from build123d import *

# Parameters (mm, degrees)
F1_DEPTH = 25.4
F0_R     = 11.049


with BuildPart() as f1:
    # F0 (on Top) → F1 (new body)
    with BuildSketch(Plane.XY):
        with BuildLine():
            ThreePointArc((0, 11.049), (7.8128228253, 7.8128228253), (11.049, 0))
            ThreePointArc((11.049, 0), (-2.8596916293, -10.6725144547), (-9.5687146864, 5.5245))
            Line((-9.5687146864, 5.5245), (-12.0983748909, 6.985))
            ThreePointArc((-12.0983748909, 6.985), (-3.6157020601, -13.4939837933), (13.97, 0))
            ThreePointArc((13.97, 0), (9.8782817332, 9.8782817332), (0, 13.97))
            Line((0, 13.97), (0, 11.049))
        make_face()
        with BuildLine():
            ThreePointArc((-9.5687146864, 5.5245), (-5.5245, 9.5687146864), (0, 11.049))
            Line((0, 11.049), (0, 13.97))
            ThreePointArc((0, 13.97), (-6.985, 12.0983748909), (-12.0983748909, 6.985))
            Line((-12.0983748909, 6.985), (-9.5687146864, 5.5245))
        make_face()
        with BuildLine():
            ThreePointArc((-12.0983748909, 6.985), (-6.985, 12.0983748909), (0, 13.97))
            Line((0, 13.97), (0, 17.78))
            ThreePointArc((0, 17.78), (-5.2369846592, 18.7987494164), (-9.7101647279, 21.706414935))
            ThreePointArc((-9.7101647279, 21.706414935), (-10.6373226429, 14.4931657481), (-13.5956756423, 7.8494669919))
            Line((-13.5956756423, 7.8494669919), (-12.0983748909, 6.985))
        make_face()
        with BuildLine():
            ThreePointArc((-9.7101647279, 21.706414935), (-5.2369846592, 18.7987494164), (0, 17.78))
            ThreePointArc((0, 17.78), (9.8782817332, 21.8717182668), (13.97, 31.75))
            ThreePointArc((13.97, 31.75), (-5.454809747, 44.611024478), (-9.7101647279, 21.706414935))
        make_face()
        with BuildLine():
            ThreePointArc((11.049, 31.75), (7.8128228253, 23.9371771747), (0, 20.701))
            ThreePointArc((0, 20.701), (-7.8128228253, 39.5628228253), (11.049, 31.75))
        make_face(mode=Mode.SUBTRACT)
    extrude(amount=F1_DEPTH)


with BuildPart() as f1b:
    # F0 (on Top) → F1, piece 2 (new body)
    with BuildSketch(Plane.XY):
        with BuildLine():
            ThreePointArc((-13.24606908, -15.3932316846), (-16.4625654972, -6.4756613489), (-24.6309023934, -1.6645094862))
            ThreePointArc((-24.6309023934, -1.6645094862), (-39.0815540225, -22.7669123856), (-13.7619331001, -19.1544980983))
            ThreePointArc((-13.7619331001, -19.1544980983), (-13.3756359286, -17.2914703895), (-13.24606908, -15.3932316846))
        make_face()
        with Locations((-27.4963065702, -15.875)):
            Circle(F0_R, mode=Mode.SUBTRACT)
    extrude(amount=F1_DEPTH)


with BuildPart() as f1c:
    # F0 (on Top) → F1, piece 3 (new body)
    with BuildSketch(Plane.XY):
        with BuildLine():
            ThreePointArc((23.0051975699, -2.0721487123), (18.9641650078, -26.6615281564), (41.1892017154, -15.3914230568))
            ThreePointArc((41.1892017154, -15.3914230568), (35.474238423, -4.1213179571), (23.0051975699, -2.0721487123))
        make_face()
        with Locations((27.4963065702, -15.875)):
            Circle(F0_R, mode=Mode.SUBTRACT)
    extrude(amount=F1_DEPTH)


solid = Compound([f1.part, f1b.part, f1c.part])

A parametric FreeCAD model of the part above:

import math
import FreeCAD as App
import Part
import Sketcher

V = App.Vector
Q = App.Units.Quantity

doc = App.newDocument("Part")
body = doc.addObject("PartDesign::Body", "Body")

# Sketch on XY plane
sketch1 = body.newObject("Sketcher::SketchObject", "Sketch")
sketch1.AttachmentSupport = (doc.getObject("XY_Plane"), [""])
sketch1.MapMode = "FlatFace"
sketch1.addGeometry(Part.ArcOfCircle(Part.Circle(V(0, 0, 0), V(0, 0, 1), 14), math.radians(150), math.radians(360)), False)
sketch1.addGeometry(Part.ArcOfCircle(Part.Circle(V(0, 0, 0), V(0, 0, 1), 14), math.radians(0), math.radians(90)), False)
sketch1.addGeometry(Part.LineSegment(V(0, 14, 0), V(0, 17.8, 0)), False)
sketch1.addGeometry(Part.ArcOfCircle(Part.Circle(V(0, 31.8, 0), V(0, 0, 1), 14), math.radians(-90), math.radians(0)), False)
sketch1.addGeometry(Part.ArcOfCircle(Part.Circle(V(0, 31.8, 0), V(0, 0, 1), 14), math.radians(0), math.radians(226)), False)
sketch1.addGeometry(Part.ArcOfCircle(Part.Circle(V(-34.8, 21.3, 0), V(0, 0, 1), 25.1), math.radians(-32), math.radians(1)), False)
sketch1.addGeometry(Part.LineSegment(V(-13.6, 7.8, 0), V(-12.1, 7, 0)), False)
sketch1.addGeometry(Part.ArcOfCircle(Part.Circle(V(0, 0, 0), V(0, 0, 1), 11), math.radians(0), math.radians(90)), False)
sketch1.addGeometry(Part.ArcOfCircle(Part.Circle(V(0, 0, 0), V(0, 0, 1), 11), math.radians(90), math.radians(360)), False)
sketch1.addGeometry(Part.ArcOfCircle(Part.Circle(V(0, 31.8, 0), V(0, 0, 1), 11), math.radians(0), math.radians(270)), False)
sketch1.addGeometry(Part.ArcOfCircle(Part.Circle(V(0, 31.8, 0), V(0, 0, 1), 11), math.radians(-90), math.radians(0)), False)
sketch1.addConstraint(Sketcher.Constraint("Tangent", 0, 2, 1, 1))
sketch1.addConstraint(Sketcher.Constraint("Coincident", 1, 2, 2, 1))
sketch1.addConstraint(Sketcher.Constraint("Coincident", 2, 2, 3, 1))
sketch1.addConstraint(Sketcher.Constraint("Tangent", 3, 2, 4, 1))
sketch1.addConstraint(Sketcher.Constraint("Coincident", 4, 2, 5, 2))
sketch1.addConstraint(Sketcher.Constraint("Coincident", 5, 1, 6, 1))
sketch1.addConstraint(Sketcher.Constraint("Coincident", 6, 2, 0, 1))
sketch1.addConstraint(Sketcher.Constraint("Tangent", 7, 1, 8, 2))
sketch1.addConstraint(Sketcher.Constraint("Coincident", 8, 1, 7, 2))
sketch1.addConstraint(Sketcher.Constraint("Tangent", 9, 1, 10, 2))
sketch1.addConstraint(Sketcher.Constraint("Coincident", 10, 1, 9, 2))
sketch1.addConstraint(Sketcher.Constraint("Vertical", 2))
sketch1.addConstraint(Sketcher.Constraint("Coincident", 0, 3, -1, 1))
sketch1.addConstraint(Sketcher.Constraint("Coincident", 7, 3, -1, 1))
sketch1.addConstraint(Sketcher.Constraint("Coincident", 9, 3, 3, 3))
sketch1.addConstraint(Sketcher.Constraint("Equal", 0, 1))
sketch1.addConstraint(Sketcher.Constraint("Equal", 1, 3))
sketch1.addConstraint(Sketcher.Constraint("Equal", 3, 4))
sketch1.addConstraint(Sketcher.Constraint("Equal", 8, 9))
sketch1.addConstraint(Sketcher.Constraint("PointOnObject", 3, 3, -2))
sketch1.addConstraint(Sketcher.Constraint("PointOnObject", 0, 2, -1))
sketch1.addConstraint(Sketcher.Constraint("PointOnObject", 1, 2, -2))
sketch1.addConstraint(Sketcher.Constraint("PointOnObject", 7, 1, -1))
sketch1.addConstraint(Sketcher.Constraint("PointOnObject", 8, 1, -2))
sketch1.addConstraint(Sketcher.Constraint("PointOnObject", 10, 1, -2))
sketch1.addConstraint(Sketcher.Constraint("Horizontal", 10, 3, 3, 2))
sketch1.addConstraint(Sketcher.Constraint("Horizontal", 3, 2, 9, 1))
sketch1.addConstraint(Sketcher.Constraint("Radius", 0, Q("0.55 in")))
sketch1.addConstraint(Sketcher.Constraint("Angle", 6, Q("-30 deg")))
sketch1.addConstraint(Sketcher.Constraint("Radius", 7, Q("0.435 in")))
sketch1.addConstraint(Sketcher.Constraint("DistanceY", 2, 1, 2, 2, Q("0.15 in")))
sketch1.addConstraint(Sketcher.Constraint("DistanceY", -1, 1, 6, 2, Q("0.275 in")))
sketch1.addConstraint(Sketcher.Constraint("Radius", 5, Q("25.072144 mm")))
sketch1.addConstraint(Sketcher.Constraint("DistanceX", 5, 1, 6, 2, Q("1.497301 mm")))
sketch1.addConstraint(Sketcher.Constraint("DistanceX", 5, 1, 4, 2, Q("3.885511 mm")))
pad1 = body.newObject("PartDesign::Pad", "Pad")
pad1.Profile = sketch1
pad1.Length = Q("1 in")
body2 = doc.addObject("PartDesign::Body", "Body001")

# Sketch on XY plane
sketch2 = body2.newObject("Sketcher::SketchObject", "Sketch001")
sketch2.AttachmentSupport = (doc.getObject("XY_Plane001"), [""])
sketch2.MapMode = "FlatFace"
sketch2.addGeometry(Part.ArcOfCircle(Part.Circle(V(-27.2, -15.4, 0), V(0, 0, 1), 14), math.radians(0), math.radians(79)), False)
sketch2.addGeometry(Part.ArcOfCircle(Part.Circle(V(-27.2, -15.4, 0), V(0, 0, 1), 14), math.radians(79), math.radians(344)), False)
sketch2.addGeometry(Part.ArcOfCircle(Part.Circle(V(-27.2, -15.4, 0), V(0, 0, 1), 14), math.radians(-15.62), math.radians(0)), False)
sketch2.addGeometry(Part.Circle(V(-27.5, -15.9, 0), V(0, 0, 1), 11), False)
sketch2.addConstraint(Sketcher.Constraint("Tangent", 0, 2, 1, 1))
sketch2.addConstraint(Sketcher.Constraint("Tangent", 1, 2, 2, 1))
sketch2.addConstraint(Sketcher.Constraint("Tangent", 2, 2, 0, 1))
sketch2.addConstraint(Sketcher.Constraint("Horizontal", 1, 3, 2, 2))
sketch2.addConstraint(Sketcher.Constraint("Diameter", 3, Q("0.87 in")))
sketch2.addConstraint(Sketcher.Constraint("Radius", 0, Q("0.55 in")))
sketch2.addConstraint(Sketcher.Constraint("DistanceY", 3, 3, -1, 1, Q("0.625 in")))
sketch2.addConstraint(Sketcher.Constraint("DistanceY", 1, 2, -1, 1, Q("19.154498 mm")))
sketch2.addConstraint(Sketcher.Constraint("DistanceX", 0, 3, -1, 1, Q("27.216069 mm")))
sketch2.addConstraint(Sketcher.Constraint("DistanceY", 0, 3, -1, 1, Q("15.393232 mm")))
sketch2.addConstraint(Sketcher.Constraint("DistanceY", 0, 2, -1, 1, Q("1.664509 mm")))
sketch2.addConstraint(Sketcher.Constraint("DistanceX", 3, 3, -1, 1, Q("27.496307 mm")))
pad2 = body2.newObject("PartDesign::Pad", "Pad001")
pad2.Profile = sketch2
pad2.Length = Q("1 in")
body3 = doc.addObject("PartDesign::Body", "Body002")

# Sketch on XY plane
sketch3 = body3.newObject("Sketcher::SketchObject", "Sketch002")
sketch3.AttachmentSupport = (doc.getObject("XY_Plane002"), [""])
sketch3.MapMode = "FlatFace"
sketch3.addGeometry(Part.ArcOfCircle(Part.Circle(V(27, -15, 0), V(0, 0, 1), 14), math.radians(108), math.radians(360)), False)
sketch3.addGeometry(Part.ArcOfCircle(Part.Circle(V(27, -15, 0), V(0, 0, 1), 14), math.radians(0), math.radians(108)), False)
sketch3.addGeometry(Part.Circle(V(27, -16, 0), V(0, 0, 1), 11), False)
sketch3.addConstraint(Sketcher.Constraint("Tangent", 0, 1, 1, 2))
sketch3.addConstraint(Sketcher.Constraint("Coincident", 1, 1, 0, 2))
sketch3.addConstraint(Sketcher.Constraint("Horizontal", 0, 3, 1, 1))
sketch3.addConstraint(Sketcher.Constraint("Diameter", 2, Q("0.87 in")))
sketch3.addConstraint(Sketcher.Constraint("Radius", 0, Q("0.55 in")))
sketch3.addConstraint(Sketcher.Constraint("DistanceY", 2, 3, -1, 1, Q("0.625 in")))
sketch3.addConstraint(Sketcher.Constraint("DistanceX", -1, 1, 0, 3, Q("27.219202 mm")))
sketch3.addConstraint(Sketcher.Constraint("DistanceY", 0, 1, -1, 1, Q("2.072149 mm")))
sketch3.addConstraint(Sketcher.Constraint("DistanceX", 0, 1, 2, 3, Q("4.491109 mm")))
sketch3.addConstraint(Sketcher.Constraint("DistanceY", 0, 3, -1, 1, Q("15.391423 mm")))
pad3 = body3.newObject("PartDesign::Pad", "Pad002")
pad3.Profile = sketch3
pad3.Length = Q("1 in")

doc.recompute()
